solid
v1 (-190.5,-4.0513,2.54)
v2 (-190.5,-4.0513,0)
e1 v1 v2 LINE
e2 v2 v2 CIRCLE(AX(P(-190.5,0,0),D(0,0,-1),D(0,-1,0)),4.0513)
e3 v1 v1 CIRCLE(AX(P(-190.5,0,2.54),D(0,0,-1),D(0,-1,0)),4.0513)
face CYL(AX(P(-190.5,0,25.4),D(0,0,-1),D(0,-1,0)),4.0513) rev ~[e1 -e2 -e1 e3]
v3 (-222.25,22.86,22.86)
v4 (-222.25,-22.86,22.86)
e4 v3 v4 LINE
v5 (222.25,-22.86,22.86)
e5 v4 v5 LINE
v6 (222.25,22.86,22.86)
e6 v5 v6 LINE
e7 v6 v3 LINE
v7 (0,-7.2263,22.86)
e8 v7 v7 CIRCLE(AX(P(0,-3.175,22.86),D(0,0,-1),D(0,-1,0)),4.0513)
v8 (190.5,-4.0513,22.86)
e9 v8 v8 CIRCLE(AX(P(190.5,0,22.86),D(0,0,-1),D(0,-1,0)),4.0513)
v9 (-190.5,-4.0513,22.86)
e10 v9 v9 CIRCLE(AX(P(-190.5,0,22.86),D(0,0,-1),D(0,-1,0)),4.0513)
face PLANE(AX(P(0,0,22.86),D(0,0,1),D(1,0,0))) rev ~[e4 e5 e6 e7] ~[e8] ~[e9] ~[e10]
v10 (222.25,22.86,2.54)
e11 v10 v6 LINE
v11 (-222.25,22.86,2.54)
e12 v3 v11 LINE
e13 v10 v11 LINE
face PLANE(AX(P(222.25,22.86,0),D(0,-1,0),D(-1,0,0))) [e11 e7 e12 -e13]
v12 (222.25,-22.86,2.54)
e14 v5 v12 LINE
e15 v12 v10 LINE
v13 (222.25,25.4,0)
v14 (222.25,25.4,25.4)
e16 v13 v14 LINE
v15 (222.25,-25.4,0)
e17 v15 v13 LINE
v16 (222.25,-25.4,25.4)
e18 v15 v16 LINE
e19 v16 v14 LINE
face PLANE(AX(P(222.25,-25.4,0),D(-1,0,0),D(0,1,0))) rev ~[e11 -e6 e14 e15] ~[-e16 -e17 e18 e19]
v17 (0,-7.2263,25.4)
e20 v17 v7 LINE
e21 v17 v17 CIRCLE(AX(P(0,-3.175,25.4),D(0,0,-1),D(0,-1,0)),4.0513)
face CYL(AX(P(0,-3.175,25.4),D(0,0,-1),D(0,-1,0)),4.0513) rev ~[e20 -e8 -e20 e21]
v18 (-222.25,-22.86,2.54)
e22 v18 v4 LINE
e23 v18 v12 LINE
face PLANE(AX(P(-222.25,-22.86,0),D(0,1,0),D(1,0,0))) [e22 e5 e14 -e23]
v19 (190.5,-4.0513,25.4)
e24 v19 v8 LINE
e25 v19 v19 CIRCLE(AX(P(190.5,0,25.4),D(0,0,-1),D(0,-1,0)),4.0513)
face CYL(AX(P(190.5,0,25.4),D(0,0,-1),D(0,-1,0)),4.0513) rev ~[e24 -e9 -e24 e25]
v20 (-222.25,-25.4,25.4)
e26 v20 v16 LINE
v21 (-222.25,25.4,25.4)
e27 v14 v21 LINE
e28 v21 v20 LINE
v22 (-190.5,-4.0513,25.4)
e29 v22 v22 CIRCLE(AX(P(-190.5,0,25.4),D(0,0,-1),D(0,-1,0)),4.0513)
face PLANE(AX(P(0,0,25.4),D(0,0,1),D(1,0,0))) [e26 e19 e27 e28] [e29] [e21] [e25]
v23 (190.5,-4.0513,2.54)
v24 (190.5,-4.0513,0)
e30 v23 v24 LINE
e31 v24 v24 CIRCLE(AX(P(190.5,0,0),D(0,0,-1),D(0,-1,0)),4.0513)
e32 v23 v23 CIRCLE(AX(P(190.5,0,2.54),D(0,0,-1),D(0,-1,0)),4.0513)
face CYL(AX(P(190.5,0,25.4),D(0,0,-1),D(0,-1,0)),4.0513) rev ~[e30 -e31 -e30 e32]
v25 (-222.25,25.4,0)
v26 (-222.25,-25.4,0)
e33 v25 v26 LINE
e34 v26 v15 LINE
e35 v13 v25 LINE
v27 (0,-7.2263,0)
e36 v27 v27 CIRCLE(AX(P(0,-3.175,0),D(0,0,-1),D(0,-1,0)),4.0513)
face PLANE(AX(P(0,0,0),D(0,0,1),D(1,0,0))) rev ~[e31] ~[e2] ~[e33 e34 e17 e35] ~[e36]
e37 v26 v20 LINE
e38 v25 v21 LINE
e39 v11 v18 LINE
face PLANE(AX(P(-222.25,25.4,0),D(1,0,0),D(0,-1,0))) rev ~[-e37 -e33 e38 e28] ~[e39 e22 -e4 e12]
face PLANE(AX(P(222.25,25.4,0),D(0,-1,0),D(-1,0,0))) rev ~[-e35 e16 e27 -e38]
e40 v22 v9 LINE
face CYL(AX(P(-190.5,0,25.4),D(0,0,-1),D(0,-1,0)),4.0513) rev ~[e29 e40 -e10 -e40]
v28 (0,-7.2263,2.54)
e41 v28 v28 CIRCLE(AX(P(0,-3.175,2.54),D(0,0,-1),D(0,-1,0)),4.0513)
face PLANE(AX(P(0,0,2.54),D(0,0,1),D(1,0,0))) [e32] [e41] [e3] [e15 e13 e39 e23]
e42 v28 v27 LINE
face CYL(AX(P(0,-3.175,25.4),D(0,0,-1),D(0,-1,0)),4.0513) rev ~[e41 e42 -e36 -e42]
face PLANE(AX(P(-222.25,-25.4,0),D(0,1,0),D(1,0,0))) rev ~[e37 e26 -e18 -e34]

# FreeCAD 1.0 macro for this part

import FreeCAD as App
import Part
import Sketcher
Q = App.Units.Quantity


def faces_at(feature, points):
    """Names of the faces that lie closest to the given points."""
    faces = feature.Shape.Faces
    near = lambda p: min(range(len(faces)), key=lambda i: faces[i].distToShape(Part.Vertex(*p))[0])
    return sorted({f"Face{near(p) + 1}" for p in points})


def add_polygon(sketch, points):
    """Adds a closed chain of lines whose ends are joined by coincident constraints."""
    first, n = sketch.GeometryCount, len(points)
    for a, b in zip(points, points[1:] + points[:1]):
        sketch.addGeometry(Part.LineSegment(App.Vector(*a, 0), App.Vector(*b, 0)), False)
    for i in range(n):
        sketch.addConstraint(Sketcher.Constraint("Coincident", first + i, 2, first + (i + 1) % n, 1))

doc = App.newDocument("Part")
params = doc.addObject("Spreadsheet::Sheet", "Params")
for row, (alias, value) in enumerate([
    ("sketch1_height", "2 in"),
    ("sketch1_width", "17.5 in"),
    ("pad1_length", "1 in"),
    ("thickness_wall", "0.1 in"),
    ("sketch2_diameter", "0.319 in"),
    ("hole_diameter", "0.319 in"),
], start=1):
    params.set(f"A{row}", alias)
    params.set(f"B{row}", "=" + value)
    params.setAlias(f"B{row}", alias)

body = doc.addObject("PartDesign::Body", "Body")

sketch1 = body.newObject("Sketcher::SketchObject", "Sketch")
sketch1.AttachmentSupport = (doc.getObject("XY_Plane"), [""])
sketch1.MapMode = "FlatFace"
add_polygon(sketch1, [(222, -25), (222, 25), (-222, 25), (-222, -25)])
sketch1.addConstraint(Sketcher.Constraint("Vertical", 0))
sketch1.addConstraint(Sketcher.Constraint("Horizontal", 1))
sketch1.addConstraint(Sketcher.Constraint("Vertical", 2))
sketch1.addConstraint(Sketcher.Constraint("Horizontal", 3))
sketch1.addConstraint(Sketcher.Constraint("Symmetric", 0, 2, 2, 2, -1, 1))
sketch1.addConstraint(Sketcher.Constraint("DistanceY", 0, 1, 0, 2, Q("2 in")))
sketch1.addConstraint(Sketcher.Constraint("DistanceX", 1, 2, 1, 1, Q("17.5 in")))
sketch1.setExpression("Constraints[9]", "Params.sketch1_height")
sketch1.setExpression("Constraints[10]", "Params.sketch1_width")
pad1 = body.newObject("PartDesign::Pad", "Pad")
pad1.Profile = sketch1
pad1.setExpression("Length", "Params.pad1_length")
doc.recompute()

thickness = body.newObject("PartDesign::Thickness", "Thickness")
thickness.Base = (pad1, faces_at(pad1, [(222.25, -8.467, 8.467), (-222.25, 8.467, 16.933)]))
thickness.setExpression("Value", "Params.thickness_wall")
thickness.Reversed = True
thickness.Join = "Intersection"

sketch2 = body.newObject("Sketcher::SketchObject", "Sketch001")
sketch2.AttachmentSupport = (doc.getObject("XY_Plane"), [""])
sketch2.MapMode = "FlatFace"
sketch2.AttachmentOffset = App.Placement(App.Vector(0, 0, 1 * 25.4), App.Rotation())
sketch2.addGeometry(Part.Circle(App.Vector(0, -3.2, 0), App.Vector(0, 0, 1), 4.1), False)
sketch2.addGeometry(Part.Circle(App.Vector(-190.5, 0, 0), App.Vector(0, 0, 1), 4.1), False)
sketch2.addGeometry(Part.Circle(App.Vector(190.5, 0, 0), App.Vector(0, 0, 1), 4.1), False)
sketch2.addConstraint(Sketcher.Constraint("Equal", 0, 1))
sketch2.addConstraint(Sketcher.Constraint("Equal", 1, 2))
sketch2.addConstraint(Sketcher.Constraint("Symmetric", 1, 3, 2, 3, -1, 1))
sketch2.addConstraint(Sketcher.Constraint("PointOnObject", 0, 3, -2))
sketch2.addConstraint(Sketcher.Constraint("PointOnObject", 1, 3, -1))
sketch2.addConstraint(Sketcher.Constraint("Diameter", 0, Q("0.319 in")))
sketch2.addConstraint(Sketcher.Constraint("DistanceX", 1, 3, 2, 3, Q("15 in")))
sketch2.addConstraint(Sketcher.Constraint("DistanceY", 0, 3, -1, 1, Q("0.125 in")))
sketch2.setExpression("Constraints[5]", "Params.sketch2_diameter")
doc.recompute()
hole = body.newObject("PartDesign::Hole", "Hole")
hole.Profile = sketch2
hole.ThreadType = "None"
hole.setExpression("Diameter", "Params.hole_diameter")
hole.DepthType = "ThroughAll"

doc.recompute()
